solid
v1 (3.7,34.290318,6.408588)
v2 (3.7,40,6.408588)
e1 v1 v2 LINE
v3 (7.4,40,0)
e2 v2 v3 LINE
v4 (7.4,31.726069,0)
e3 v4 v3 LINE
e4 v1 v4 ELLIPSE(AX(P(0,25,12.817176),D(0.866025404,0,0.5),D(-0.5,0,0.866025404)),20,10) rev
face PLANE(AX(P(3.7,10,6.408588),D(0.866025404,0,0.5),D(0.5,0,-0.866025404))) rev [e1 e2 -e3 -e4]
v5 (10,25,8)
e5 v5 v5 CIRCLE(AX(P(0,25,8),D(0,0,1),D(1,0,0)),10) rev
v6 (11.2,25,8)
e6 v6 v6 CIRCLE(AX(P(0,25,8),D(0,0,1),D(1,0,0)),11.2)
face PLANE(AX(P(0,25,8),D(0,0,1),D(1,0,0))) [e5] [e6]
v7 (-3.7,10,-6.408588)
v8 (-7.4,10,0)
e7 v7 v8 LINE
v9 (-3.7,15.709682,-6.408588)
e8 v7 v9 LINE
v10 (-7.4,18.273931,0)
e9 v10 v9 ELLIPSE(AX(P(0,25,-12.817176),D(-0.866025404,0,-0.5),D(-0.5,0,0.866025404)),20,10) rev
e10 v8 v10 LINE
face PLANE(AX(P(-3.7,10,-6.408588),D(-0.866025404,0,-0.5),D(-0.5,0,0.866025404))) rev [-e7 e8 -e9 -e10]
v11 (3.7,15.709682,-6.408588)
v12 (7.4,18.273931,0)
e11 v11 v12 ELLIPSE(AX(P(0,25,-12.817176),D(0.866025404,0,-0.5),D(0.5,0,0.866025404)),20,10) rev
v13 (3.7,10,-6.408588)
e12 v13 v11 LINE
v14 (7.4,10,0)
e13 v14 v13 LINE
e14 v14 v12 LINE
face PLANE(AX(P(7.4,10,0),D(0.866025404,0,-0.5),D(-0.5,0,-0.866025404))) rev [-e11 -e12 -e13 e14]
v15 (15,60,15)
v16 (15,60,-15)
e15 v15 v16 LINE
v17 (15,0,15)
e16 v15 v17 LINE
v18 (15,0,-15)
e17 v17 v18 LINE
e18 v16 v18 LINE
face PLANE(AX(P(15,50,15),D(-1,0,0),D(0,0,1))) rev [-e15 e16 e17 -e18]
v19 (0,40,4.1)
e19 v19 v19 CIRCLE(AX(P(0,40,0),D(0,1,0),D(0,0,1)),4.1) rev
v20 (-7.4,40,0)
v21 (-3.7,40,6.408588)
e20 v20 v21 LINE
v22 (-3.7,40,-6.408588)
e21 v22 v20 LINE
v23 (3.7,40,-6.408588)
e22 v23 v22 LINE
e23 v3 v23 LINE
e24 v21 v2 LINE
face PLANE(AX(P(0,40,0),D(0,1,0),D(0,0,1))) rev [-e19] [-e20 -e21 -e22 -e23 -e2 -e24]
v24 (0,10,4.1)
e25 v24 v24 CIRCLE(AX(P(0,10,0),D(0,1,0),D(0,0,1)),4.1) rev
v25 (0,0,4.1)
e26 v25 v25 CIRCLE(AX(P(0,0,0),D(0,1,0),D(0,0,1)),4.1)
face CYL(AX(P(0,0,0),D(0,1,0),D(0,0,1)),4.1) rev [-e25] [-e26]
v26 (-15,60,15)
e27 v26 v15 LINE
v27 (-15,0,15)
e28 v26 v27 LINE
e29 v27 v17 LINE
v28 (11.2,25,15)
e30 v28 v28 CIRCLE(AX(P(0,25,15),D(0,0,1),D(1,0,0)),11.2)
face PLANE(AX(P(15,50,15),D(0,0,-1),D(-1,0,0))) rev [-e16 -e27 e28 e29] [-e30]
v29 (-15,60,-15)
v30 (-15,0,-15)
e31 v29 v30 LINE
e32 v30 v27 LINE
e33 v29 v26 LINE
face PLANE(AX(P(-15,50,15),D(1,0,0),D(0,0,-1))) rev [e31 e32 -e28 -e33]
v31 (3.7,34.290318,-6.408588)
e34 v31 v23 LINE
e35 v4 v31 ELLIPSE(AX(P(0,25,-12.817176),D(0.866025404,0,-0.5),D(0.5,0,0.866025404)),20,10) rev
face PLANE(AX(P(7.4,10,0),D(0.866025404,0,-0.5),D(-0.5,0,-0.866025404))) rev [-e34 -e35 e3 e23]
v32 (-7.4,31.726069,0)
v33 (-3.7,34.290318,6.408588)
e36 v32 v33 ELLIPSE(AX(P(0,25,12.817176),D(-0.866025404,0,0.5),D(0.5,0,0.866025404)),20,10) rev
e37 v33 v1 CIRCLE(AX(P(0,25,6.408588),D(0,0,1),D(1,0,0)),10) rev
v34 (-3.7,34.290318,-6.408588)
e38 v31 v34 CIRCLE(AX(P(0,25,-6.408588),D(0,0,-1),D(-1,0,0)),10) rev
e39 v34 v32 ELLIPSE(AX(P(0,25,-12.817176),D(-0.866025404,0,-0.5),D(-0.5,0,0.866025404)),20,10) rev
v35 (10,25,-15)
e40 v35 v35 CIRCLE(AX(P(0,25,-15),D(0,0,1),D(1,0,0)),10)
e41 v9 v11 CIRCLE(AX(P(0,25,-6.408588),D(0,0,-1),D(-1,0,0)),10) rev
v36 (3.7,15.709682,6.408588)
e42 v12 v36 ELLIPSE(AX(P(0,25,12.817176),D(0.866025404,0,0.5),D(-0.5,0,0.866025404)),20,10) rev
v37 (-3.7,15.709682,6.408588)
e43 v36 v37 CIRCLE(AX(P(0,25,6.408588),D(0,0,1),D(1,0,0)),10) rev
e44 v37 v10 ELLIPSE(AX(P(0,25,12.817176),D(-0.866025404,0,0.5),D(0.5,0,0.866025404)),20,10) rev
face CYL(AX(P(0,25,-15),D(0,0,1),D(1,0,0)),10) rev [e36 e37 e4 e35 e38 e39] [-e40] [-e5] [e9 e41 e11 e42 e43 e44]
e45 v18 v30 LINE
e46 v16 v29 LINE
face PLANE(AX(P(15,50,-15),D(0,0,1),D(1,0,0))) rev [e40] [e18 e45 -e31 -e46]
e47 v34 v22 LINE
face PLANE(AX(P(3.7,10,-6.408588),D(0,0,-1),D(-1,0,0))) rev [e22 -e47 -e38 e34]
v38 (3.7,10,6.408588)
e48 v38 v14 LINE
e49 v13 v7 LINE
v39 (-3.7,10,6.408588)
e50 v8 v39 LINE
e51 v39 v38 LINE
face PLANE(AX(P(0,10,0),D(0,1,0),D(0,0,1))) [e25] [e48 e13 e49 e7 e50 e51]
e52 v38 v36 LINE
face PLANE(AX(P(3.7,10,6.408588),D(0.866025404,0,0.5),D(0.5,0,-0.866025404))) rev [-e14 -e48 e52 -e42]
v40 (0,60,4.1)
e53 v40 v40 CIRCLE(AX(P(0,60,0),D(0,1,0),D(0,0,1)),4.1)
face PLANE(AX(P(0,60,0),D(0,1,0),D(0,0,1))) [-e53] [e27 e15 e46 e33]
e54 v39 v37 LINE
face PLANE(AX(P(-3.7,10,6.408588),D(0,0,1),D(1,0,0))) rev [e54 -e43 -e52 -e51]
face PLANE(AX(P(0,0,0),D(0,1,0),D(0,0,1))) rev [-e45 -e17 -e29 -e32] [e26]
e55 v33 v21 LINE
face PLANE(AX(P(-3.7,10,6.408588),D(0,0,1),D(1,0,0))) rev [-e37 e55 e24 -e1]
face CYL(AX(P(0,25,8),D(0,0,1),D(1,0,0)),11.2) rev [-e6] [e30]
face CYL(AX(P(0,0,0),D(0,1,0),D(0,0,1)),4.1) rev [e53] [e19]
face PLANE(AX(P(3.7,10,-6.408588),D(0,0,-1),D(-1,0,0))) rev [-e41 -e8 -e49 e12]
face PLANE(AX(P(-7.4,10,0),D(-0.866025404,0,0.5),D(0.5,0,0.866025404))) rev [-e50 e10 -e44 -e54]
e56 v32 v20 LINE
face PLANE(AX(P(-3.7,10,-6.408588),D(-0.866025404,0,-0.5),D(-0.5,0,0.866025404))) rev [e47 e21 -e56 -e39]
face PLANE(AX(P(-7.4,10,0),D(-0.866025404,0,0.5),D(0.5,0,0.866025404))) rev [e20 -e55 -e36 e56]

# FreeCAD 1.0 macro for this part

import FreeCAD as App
import Part
import Sketcher
Q = App.Units.Quantity

doc = App.newDocument("Part")
params = doc.addObject("Spreadsheet::Sheet", "Params")
for row, (alias, value) in enumerate([
    ("sketch1_width", "30 mm"),
    ("pad1_length", "50 mm"),
    ("sketch2_diameter", "20 mm"),
    ("sketch3_diameter", "22.4 mm"),
    ("pocket2_length", "7 mm"),
    ("sketch4_width", "30 mm"),
    ("pad2_length", "10 mm"),
    ("sketch5_diameter", "8.2 mm"),
    ("sketch6_width", "7.4 mm"),
    ("sketch6_length", "7.4 mm"),
    ("pocket4_length", "30 mm"),
], start=1):
    params.set(f"A{row}", alias)
    params.set(f"B{row}", "=" + value)
    params.setAlias(f"B{row}", alias)

body = doc.addObject("PartDesign::Body", "Body")

sketch1 = doc.addObject("Sketcher::SketchObject", "Sketch")
body.addObject(sketch1)
sketch1.AttachmentSupport = (doc.XZ_Plane, [""])
sketch1.MapMode = "FlatFace"
sketch1.addGeometry(Part.LineSegment(App.Vector(-15, -15, 0), App.Vector(-15, 15, 0)), False)
sketch1.addGeometry(Part.LineSegment(App.Vector(-15, 15, 0), App.Vector(15, 15, 0)), False)
sketch1.addGeometry(Part.LineSegment(App.Vector(15, 15, 0), App.Vector(15, -15, 0)), False)
sketch1.addGeometry(Part.LineSegment(App.Vector(15, -15, 0), App.Vector(-15, -15, 0)), False)
sketch1.addConstraint(Sketcher.Constraint("Coincident", 0, 2, 1, 1))
sketch1.addConstraint(Sketcher.Constraint("Coincident", 1, 2, 2, 1))
sketch1.addConstraint(Sketcher.Constraint("Coincident", 2, 2, 3, 1))
sketch1.addConstraint(Sketcher.Constraint("Coincident", 3, 2, 0, 1))
sketch1.addConstraint(Sketcher.Constraint("Vertical", 0))
sketch1.addConstraint(Sketcher.Constraint("Horizontal", 1))
sketch1.addConstraint(Sketcher.Constraint("Vertical", 2))
sketch1.addConstraint(Sketcher.Constraint("Horizontal", 3))
sketch1.addConstraint(Sketcher.Constraint("Symmetric", 0, 2, 2, 2, -1, 1))
sketch1.addConstraint(Sketcher.Constraint("Equal", 3, 0))
sketch1.addConstraint(Sketcher.Constraint("DistanceX", 1, 1, 1, 2, 30.0))
sketch1.setExpression("Constraints[10]", "Params.sketch1_width")
pad1 = doc.addObject("PartDesign::Pad", "Pad")
body.addObject(pad1)
pad1.Profile = sketch1
pad1.setExpression("Length", "Params.pad1_length")
pad1.Reversed = True

sketch2 = doc.addObject("Sketcher::SketchObject", "Sketch001")
body.addObject(sketch2)
sketch2.AttachmentSupport = (doc.XY_Plane, [""])
sketch2.MapMode = "FlatFace"
sketch2.AttachmentOffset = App.Placement(App.Vector(0, 0, 15), App.Rotation())
sketch2.addGeometry(Part.Circle(App.Vector(0, 25, 0), App.Vector(0, 0, 1), 10), False)
sketch2.addConstraint(Sketcher.Constraint("PointOnObject", 0, 3, -2))
sketch2.addConstraint(Sketcher.Constraint("Diameter", 0, 20.0))
sketch2.addConstraint(Sketcher.Constraint("DistanceY", -1, 1, 0, 3, 25.0))
sketch2.setExpression("Constraints[1]", "Params.sketch2_diameter")
pocket1 = doc.addObject("PartDesign::Pocket", "Pocket")
body.addObject(pocket1)
pocket1.Profile = sketch2
pocket1.Type = "ThroughAll"

sketch3 = doc.addObject("Sketcher::SketchObject", "Sketch002")
body.addObject(sketch3)
sketch3.AttachmentSupport = (doc.XY_Plane, [""])
sketch3.MapMode = "FlatFace"
sketch3.AttachmentOffset = App.Placement(App.Vector(0, 0, 15), App.Rotation())
sketch3.addGeometry(Part.Circle(App.Vector(0, 25, 0), App.Vector(0, 0, 1), 11.2), False)
sketch3.addConstraint(Sketcher.Constraint("PointOnObject", 0, 3, -2))
sketch3.addConstraint(Sketcher.Constraint("Diameter", 0, 22.4))
sketch3.addConstraint(Sketcher.Constraint("DistanceY", -1, 1, 0, 3, 25.0))
sketch3.setExpression("Constraints[1]", "Params.sketch3_diameter")
pocket2 = doc.addObject("PartDesign::Pocket", "Pocket001")
body.addObject(pocket2)
pocket2.Profile = sketch3
pocket2.setExpression("Length", "Params.pocket2_length")

sketch4 = doc.addObject("Sketcher::SketchObject", "Sketch003")
body.addObject(sketch4)
sketch4.AttachmentSupport = (doc.XZ_Plane, [""])
sketch4.MapMode = "FlatFace"
sketch4.AttachmentOffset = App.Placement(App.Vector(0, 0, -50), App.Rotation())
sketch4.addGeometry(Part.LineSegment(App.Vector(-15, -15, 0), App.Vector(-15, 15, 0)), False)
sketch4.addGeometry(Part.LineSegment(App.Vector(-15, 15, 0), App.Vector(15, 15, 0)), False)
sketch4.addGeometry(Part.LineSegment(App.Vector(15, 15, 0), App.Vector(15, -15, 0)), False)
sketch4.addGeometry(Part.LineSegment(App.Vector(15, -15, 0), App.Vector(-15, -15, 0)), False)
sketch4.addConstraint(Sketcher.Constraint("Coincident", 0, 2, 1, 1))
sketch4.addConstraint(Sketcher.Constraint("Coincident", 1, 2, 2, 1))
sketch4.addConstraint(Sketcher.Constraint("Coincident", 2, 2, 3, 1))
sketch4.addConstraint(Sketcher.Constraint("Coincident", 3, 2, 0, 1))
sketch4.addConstraint(Sketcher.Constraint("Vertical", 0))
sketch4.addConstraint(Sketcher.Constraint("Horizontal", 1))
sketch4.addConstraint(Sketcher.Constraint("Vertical", 2))
sketch4.addConstraint(Sketcher.Constraint("Horizontal", 3))
sketch4.addConstraint(Sketcher.Constraint("Symmetric", 0, 2, 2, 2, -1, 1))
sketch4.addConstraint(Sketcher.Constraint("Equal", 3, 0))
sketch4.addConstraint(Sketcher.Constraint("DistanceX", 1, 1, 1, 2, 30.0))
sketch4.setExpression("Constraints[10]", "Params.sketch4_width")
pad2 = doc.addObject("PartDesign::Pad", "Pad001")
body.addObject(pad2)
pad2.Profile = sketch4
pad2.setExpression("Length", "Params.pad2_length")
pad2.Reversed = True

sketch5 = doc.addObject("Sketcher::SketchObject", "Sketch004")
body.addObject(sketch5)
sketch5.AttachmentSupport = (doc.XZ_Plane, [""])
sketch5.MapMode = "FlatFace"
sketch5.AttachmentOffset = App.Placement(App.Vector(0, 0, -60), App.Rotation())
sketch5.addGeometry(Part.Circle(App.Vector(0, 0, 0), App.Vector(0, 0, 1), 4.1), False)
sketch5.addConstraint(Sketcher.Constraint("Coincident", 0, 3, -1, 1))
sketch5.addConstraint(Sketcher.Constraint("Diameter", 0, 8.2))
sketch5.setExpression("Constraints[1]", "Params.sketch5_diameter")
pocket3 = doc.addObject("PartDesign::Pocket", "Pocket002")
body.addObject(pocket3)
pocket3.Profile = sketch5
pocket3.Type = "ThroughAll"
pocket3.Reversed = True

sketch6 = doc.addObject("Sketcher::SketchObject", "Sketch005")
body.addObject(sketch6)
sketch6.AttachmentSupport = (doc.XZ_Plane, [""])
sketch6.MapMode = "FlatFace"
sketch6.AttachmentOffset = App.Placement(App.Vector(0, 0, -40), App.Rotation())
sketch6.addGeometry(Part.LineSegment(App.Vector(-3.7, -6.408588, 0), App.Vector(-7.4, 0, 0)), False)
sketch6.addGeometry(Part.LineSegment(App.Vector(-7.4, 0, 0), App.Vector(-3.7, 6.408588, 0)), False)
sketch6.addGeometry(Part.LineSegment(App.Vector(-3.7, 6.408588, 0), App.Vector(3.7, 6.408588, 0)), False)
sketch6.addGeometry(Part.LineSegment(App.Vector(3.7, 6.408588, 0), App.Vector(7.4, 0, 0)), False)
sketch6.addGeometry(Part.LineSegment(App.Vector(7.4, 0, 0), App.Vector(3.7, -6.408588, 0)), False)
sketch6.addGeometry(Part.LineSegment(App.Vector(3.7, -6.408588, 0), App.Vector(-3.7, -6.408588, 0)), False)
sketch6.addConstraint(Sketcher.Constraint("Coincident", 0, 2, 1, 1))
sketch6.addConstraint(Sketcher.Constraint("Coincident", 1, 2, 2, 1))
sketch6.addConstraint(Sketcher.Constraint("Coincident", 2, 2, 3, 1))
sketch6.addConstraint(Sketcher.Constraint("Coincident", 3, 2, 4, 1))
sketch6.addConstraint(Sketcher.Constraint("Coincident", 4, 2, 5, 1))
sketch6.addConstraint(Sketcher.Constraint("Coincident", 5, 2, 0, 1))
sketch6.addConstraint(Sketcher.Constraint("Horizontal", 2))
sketch6.addConstraint(Sketcher.Constraint("Horizontal", 5))
sketch6.addConstraint(Sketcher.Constraint("Symmetric", 0, 2, 3, 2, -1, 1))
sketch6.addConstraint(Sketcher.Constraint("Symmetric", 1, 2, 4, 2, -1, 1))
sketch6.addConstraint(Sketcher.Constraint("PointOnObject", 0, 2, -1))
sketch6.addConstraint(Sketcher.Constraint("Parallel", 0, 3))
sketch6.addConstraint(Sketcher.Constraint("Vertical", 2, 2, 4, 2))
sketch6.addConstraint(Sketcher.Constraint("Angle", 0, Q("120 deg")))
sketch6.addConstraint(Sketcher.Constraint("DistanceX", 2, 1, 2, 2, 7.4))
sketch6.addConstraint(Sketcher.Constraint("Distance", 0, 7.4))
sketch6.setExpression("Constraints[14]", "Params.sketch6_width")
sketch6.setExpression("Constraints[15]", "Params.sketch6_length")
pocket4 = doc.addObject("PartDesign::Pocket", "Pocket003")
body.addObject(pocket4)
pocket4.Profile = sketch6
pocket4.setExpression("Length", "Params.pocket4_length")
pocket4.Reversed = True

doc.recompute()
